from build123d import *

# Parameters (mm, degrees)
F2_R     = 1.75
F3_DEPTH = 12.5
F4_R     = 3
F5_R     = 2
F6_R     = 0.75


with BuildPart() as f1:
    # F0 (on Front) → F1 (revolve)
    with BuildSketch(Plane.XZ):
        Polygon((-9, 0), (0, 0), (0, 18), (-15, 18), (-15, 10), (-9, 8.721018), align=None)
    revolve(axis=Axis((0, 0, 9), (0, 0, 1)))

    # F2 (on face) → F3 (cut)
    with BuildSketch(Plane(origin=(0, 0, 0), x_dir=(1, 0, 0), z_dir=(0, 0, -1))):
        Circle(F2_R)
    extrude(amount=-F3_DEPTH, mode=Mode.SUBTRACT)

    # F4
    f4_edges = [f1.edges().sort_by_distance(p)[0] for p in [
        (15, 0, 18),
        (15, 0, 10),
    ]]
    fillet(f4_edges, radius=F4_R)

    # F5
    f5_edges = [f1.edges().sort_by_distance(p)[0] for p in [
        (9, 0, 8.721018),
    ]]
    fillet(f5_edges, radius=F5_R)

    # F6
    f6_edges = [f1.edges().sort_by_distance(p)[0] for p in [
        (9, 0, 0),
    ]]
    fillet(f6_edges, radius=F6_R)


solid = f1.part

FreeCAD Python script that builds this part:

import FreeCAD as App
import Part
import Sketcher
Q = App.Units.Quantity


def edges_at(feature, points):
    """Names of the edges that pass closest to the given points."""
    edges = feature.Shape.Edges
    near = lambda p: min(range(len(edges)), key=lambda i: edges[i].distToShape(Part.Vertex(*p))[0])
    return sorted({f"Edge{near(p) + 1}" for p in points})


def add_polygon(sketch, points):
    """Adds a closed chain of lines whose ends are joined by coincident constraints."""
    first, n = sketch.GeometryCount, len(points)
    for a, b in zip(points, points[1:] + points[:1]):
        sketch.addGeometry(Part.LineSegment(App.Vector(*a, 0), App.Vector(*b, 0)), False)
    for i in range(n):
        sketch.addConstraint(Sketcher.Constraint("Coincident", first + i, 2, first + (i + 1) % n, 1))

doc = App.newDocument("Part")
params = doc.addObject("Spreadsheet::Sheet", "Params")
for row, (alias, value) in enumerate([
    ("sketch1_width", "9 mm"),
    ("sketch1_width2", "15 mm"),
    ("sketch1_height", "18 mm"),
    ("sketch1_height2", "8 mm"),
    ("revolution_angle", "360 deg"),
    ("sketch2_diameter", "3.5 mm"),
    ("pocket1_length", "12.5 mm"),
    ("fillet_radius", "3 mm"),
    ("fillet2_radius", "2 mm"),
    ("fillet3_radius", "0.75 mm"),
], start=1):
    params.set(f"A{row}", alias)
    params.set(f"B{row}", "=" + value)
    params.setAlias(f"B{row}", alias)

body = doc.addObject("PartDesign::Body", "Body")

# Sketch on XZ plane
sketch1 = body.newObject("Sketcher::SketchObject", "Sketch")
sketch1.AttachmentSupport = (doc.getObject("XZ_Plane"), [""])
sketch1.MapMode = "FlatFace"
add_polygon(sketch1, [(-9, 0), (0, 0), (0, 18), (-15, 18), (-15, 10), (-9, 9)])  # lines 0-5
sketch1.addConstraint([
    Sketcher.Constraint("Horizontal", 0),
    Sketcher.Constraint("Vertical", 1),
    Sketcher.Constraint("Horizontal", 2),
    Sketcher.Constraint("Vertical", 3),
    Sketcher.Constraint("Vertical", 5),
    Sketcher.Constraint("Coincident", 0, 2, -1, 1),
    Sketcher.Constraint("DistanceX", 0, 1, 0, 2, Q("9 mm")),
    Sketcher.Constraint("DistanceX", 2, 2, 2, 1, Q("15 mm")),
    Sketcher.Constraint("DistanceY", 1, 1, 1, 2, Q("18 mm")),
    Sketcher.Constraint("DistanceY", 3, 2, 3, 1, Q("8 mm")),
    Sketcher.Constraint("Distance", 4, Q("6.134802 mm")),
])
sketch1.setExpression("Constraints[12]", "Params.sketch1_width")
sketch1.setExpression("Constraints[13]", "Params.sketch1_width2")
sketch1.setExpression("Constraints[14]", "Params.sketch1_height")
sketch1.setExpression("Constraints[15]", "Params.sketch1_height2")
revolution = body.newObject("PartDesign::Revolution", "Revolution")
revolution.Profile = sketch1
revolution.ReferenceAxis = (sketch1, ["V_Axis"])
revolution.setExpression("Angle", "Params.revolution_angle")

# Sketch on XY plane
sketch2 = body.newObject("Sketcher::SketchObject", "Sketch001")
sketch2.AttachmentSupport = (doc.getObject("XY_Plane"), [""])
sketch2.MapMode = "FlatFace"
sketch2.addGeometry(Part.Circle(App.Vector(0, 0, 0), App.Vector(0, 0, 1), 1.8), False)
sketch2.addConstraint([
    Sketcher.Constraint("Coincident", 0, 3, -1, 1),
    Sketcher.Constraint("Diameter", 0, Q("3.5 mm")),
])
sketch2.setExpression("Constraints[1]", "Params.sketch2_diameter")
pocket1 = body.newObject("PartDesign::Pocket", "Pocket")
pocket1.Profile = sketch2
pocket1.setExpression("Length", "Params.pocket1_length")
pocket1.Reversed = True
doc.recompute()

fillet = body.newObject("PartDesign::Fillet", "Fillet")
fillet.Base = (pocket1, edges_at(pocket1, [(15, 0, 18), (15, 0, 10)]))
fillet.setExpression("Radius", "Params.fillet_radius")
doc.recompute()

fillet2 = body.newObject("PartDesign::Fillet", "Fillet001")
fillet2.Base = (fillet, edges_at(fillet, [(9, 0, 8.721)]))
fillet2.setExpression("Radius", "Params.fillet2_radius")
doc.recompute()

fillet3 = body.newObject("PartDesign::Fillet", "Fillet002")
fillet3.Base = (fillet2, edges_at(fillet2, [(9, 0, 0)]))
fillet3.setExpression("Radius", "Params.fillet3_radius")

doc.recompute()
